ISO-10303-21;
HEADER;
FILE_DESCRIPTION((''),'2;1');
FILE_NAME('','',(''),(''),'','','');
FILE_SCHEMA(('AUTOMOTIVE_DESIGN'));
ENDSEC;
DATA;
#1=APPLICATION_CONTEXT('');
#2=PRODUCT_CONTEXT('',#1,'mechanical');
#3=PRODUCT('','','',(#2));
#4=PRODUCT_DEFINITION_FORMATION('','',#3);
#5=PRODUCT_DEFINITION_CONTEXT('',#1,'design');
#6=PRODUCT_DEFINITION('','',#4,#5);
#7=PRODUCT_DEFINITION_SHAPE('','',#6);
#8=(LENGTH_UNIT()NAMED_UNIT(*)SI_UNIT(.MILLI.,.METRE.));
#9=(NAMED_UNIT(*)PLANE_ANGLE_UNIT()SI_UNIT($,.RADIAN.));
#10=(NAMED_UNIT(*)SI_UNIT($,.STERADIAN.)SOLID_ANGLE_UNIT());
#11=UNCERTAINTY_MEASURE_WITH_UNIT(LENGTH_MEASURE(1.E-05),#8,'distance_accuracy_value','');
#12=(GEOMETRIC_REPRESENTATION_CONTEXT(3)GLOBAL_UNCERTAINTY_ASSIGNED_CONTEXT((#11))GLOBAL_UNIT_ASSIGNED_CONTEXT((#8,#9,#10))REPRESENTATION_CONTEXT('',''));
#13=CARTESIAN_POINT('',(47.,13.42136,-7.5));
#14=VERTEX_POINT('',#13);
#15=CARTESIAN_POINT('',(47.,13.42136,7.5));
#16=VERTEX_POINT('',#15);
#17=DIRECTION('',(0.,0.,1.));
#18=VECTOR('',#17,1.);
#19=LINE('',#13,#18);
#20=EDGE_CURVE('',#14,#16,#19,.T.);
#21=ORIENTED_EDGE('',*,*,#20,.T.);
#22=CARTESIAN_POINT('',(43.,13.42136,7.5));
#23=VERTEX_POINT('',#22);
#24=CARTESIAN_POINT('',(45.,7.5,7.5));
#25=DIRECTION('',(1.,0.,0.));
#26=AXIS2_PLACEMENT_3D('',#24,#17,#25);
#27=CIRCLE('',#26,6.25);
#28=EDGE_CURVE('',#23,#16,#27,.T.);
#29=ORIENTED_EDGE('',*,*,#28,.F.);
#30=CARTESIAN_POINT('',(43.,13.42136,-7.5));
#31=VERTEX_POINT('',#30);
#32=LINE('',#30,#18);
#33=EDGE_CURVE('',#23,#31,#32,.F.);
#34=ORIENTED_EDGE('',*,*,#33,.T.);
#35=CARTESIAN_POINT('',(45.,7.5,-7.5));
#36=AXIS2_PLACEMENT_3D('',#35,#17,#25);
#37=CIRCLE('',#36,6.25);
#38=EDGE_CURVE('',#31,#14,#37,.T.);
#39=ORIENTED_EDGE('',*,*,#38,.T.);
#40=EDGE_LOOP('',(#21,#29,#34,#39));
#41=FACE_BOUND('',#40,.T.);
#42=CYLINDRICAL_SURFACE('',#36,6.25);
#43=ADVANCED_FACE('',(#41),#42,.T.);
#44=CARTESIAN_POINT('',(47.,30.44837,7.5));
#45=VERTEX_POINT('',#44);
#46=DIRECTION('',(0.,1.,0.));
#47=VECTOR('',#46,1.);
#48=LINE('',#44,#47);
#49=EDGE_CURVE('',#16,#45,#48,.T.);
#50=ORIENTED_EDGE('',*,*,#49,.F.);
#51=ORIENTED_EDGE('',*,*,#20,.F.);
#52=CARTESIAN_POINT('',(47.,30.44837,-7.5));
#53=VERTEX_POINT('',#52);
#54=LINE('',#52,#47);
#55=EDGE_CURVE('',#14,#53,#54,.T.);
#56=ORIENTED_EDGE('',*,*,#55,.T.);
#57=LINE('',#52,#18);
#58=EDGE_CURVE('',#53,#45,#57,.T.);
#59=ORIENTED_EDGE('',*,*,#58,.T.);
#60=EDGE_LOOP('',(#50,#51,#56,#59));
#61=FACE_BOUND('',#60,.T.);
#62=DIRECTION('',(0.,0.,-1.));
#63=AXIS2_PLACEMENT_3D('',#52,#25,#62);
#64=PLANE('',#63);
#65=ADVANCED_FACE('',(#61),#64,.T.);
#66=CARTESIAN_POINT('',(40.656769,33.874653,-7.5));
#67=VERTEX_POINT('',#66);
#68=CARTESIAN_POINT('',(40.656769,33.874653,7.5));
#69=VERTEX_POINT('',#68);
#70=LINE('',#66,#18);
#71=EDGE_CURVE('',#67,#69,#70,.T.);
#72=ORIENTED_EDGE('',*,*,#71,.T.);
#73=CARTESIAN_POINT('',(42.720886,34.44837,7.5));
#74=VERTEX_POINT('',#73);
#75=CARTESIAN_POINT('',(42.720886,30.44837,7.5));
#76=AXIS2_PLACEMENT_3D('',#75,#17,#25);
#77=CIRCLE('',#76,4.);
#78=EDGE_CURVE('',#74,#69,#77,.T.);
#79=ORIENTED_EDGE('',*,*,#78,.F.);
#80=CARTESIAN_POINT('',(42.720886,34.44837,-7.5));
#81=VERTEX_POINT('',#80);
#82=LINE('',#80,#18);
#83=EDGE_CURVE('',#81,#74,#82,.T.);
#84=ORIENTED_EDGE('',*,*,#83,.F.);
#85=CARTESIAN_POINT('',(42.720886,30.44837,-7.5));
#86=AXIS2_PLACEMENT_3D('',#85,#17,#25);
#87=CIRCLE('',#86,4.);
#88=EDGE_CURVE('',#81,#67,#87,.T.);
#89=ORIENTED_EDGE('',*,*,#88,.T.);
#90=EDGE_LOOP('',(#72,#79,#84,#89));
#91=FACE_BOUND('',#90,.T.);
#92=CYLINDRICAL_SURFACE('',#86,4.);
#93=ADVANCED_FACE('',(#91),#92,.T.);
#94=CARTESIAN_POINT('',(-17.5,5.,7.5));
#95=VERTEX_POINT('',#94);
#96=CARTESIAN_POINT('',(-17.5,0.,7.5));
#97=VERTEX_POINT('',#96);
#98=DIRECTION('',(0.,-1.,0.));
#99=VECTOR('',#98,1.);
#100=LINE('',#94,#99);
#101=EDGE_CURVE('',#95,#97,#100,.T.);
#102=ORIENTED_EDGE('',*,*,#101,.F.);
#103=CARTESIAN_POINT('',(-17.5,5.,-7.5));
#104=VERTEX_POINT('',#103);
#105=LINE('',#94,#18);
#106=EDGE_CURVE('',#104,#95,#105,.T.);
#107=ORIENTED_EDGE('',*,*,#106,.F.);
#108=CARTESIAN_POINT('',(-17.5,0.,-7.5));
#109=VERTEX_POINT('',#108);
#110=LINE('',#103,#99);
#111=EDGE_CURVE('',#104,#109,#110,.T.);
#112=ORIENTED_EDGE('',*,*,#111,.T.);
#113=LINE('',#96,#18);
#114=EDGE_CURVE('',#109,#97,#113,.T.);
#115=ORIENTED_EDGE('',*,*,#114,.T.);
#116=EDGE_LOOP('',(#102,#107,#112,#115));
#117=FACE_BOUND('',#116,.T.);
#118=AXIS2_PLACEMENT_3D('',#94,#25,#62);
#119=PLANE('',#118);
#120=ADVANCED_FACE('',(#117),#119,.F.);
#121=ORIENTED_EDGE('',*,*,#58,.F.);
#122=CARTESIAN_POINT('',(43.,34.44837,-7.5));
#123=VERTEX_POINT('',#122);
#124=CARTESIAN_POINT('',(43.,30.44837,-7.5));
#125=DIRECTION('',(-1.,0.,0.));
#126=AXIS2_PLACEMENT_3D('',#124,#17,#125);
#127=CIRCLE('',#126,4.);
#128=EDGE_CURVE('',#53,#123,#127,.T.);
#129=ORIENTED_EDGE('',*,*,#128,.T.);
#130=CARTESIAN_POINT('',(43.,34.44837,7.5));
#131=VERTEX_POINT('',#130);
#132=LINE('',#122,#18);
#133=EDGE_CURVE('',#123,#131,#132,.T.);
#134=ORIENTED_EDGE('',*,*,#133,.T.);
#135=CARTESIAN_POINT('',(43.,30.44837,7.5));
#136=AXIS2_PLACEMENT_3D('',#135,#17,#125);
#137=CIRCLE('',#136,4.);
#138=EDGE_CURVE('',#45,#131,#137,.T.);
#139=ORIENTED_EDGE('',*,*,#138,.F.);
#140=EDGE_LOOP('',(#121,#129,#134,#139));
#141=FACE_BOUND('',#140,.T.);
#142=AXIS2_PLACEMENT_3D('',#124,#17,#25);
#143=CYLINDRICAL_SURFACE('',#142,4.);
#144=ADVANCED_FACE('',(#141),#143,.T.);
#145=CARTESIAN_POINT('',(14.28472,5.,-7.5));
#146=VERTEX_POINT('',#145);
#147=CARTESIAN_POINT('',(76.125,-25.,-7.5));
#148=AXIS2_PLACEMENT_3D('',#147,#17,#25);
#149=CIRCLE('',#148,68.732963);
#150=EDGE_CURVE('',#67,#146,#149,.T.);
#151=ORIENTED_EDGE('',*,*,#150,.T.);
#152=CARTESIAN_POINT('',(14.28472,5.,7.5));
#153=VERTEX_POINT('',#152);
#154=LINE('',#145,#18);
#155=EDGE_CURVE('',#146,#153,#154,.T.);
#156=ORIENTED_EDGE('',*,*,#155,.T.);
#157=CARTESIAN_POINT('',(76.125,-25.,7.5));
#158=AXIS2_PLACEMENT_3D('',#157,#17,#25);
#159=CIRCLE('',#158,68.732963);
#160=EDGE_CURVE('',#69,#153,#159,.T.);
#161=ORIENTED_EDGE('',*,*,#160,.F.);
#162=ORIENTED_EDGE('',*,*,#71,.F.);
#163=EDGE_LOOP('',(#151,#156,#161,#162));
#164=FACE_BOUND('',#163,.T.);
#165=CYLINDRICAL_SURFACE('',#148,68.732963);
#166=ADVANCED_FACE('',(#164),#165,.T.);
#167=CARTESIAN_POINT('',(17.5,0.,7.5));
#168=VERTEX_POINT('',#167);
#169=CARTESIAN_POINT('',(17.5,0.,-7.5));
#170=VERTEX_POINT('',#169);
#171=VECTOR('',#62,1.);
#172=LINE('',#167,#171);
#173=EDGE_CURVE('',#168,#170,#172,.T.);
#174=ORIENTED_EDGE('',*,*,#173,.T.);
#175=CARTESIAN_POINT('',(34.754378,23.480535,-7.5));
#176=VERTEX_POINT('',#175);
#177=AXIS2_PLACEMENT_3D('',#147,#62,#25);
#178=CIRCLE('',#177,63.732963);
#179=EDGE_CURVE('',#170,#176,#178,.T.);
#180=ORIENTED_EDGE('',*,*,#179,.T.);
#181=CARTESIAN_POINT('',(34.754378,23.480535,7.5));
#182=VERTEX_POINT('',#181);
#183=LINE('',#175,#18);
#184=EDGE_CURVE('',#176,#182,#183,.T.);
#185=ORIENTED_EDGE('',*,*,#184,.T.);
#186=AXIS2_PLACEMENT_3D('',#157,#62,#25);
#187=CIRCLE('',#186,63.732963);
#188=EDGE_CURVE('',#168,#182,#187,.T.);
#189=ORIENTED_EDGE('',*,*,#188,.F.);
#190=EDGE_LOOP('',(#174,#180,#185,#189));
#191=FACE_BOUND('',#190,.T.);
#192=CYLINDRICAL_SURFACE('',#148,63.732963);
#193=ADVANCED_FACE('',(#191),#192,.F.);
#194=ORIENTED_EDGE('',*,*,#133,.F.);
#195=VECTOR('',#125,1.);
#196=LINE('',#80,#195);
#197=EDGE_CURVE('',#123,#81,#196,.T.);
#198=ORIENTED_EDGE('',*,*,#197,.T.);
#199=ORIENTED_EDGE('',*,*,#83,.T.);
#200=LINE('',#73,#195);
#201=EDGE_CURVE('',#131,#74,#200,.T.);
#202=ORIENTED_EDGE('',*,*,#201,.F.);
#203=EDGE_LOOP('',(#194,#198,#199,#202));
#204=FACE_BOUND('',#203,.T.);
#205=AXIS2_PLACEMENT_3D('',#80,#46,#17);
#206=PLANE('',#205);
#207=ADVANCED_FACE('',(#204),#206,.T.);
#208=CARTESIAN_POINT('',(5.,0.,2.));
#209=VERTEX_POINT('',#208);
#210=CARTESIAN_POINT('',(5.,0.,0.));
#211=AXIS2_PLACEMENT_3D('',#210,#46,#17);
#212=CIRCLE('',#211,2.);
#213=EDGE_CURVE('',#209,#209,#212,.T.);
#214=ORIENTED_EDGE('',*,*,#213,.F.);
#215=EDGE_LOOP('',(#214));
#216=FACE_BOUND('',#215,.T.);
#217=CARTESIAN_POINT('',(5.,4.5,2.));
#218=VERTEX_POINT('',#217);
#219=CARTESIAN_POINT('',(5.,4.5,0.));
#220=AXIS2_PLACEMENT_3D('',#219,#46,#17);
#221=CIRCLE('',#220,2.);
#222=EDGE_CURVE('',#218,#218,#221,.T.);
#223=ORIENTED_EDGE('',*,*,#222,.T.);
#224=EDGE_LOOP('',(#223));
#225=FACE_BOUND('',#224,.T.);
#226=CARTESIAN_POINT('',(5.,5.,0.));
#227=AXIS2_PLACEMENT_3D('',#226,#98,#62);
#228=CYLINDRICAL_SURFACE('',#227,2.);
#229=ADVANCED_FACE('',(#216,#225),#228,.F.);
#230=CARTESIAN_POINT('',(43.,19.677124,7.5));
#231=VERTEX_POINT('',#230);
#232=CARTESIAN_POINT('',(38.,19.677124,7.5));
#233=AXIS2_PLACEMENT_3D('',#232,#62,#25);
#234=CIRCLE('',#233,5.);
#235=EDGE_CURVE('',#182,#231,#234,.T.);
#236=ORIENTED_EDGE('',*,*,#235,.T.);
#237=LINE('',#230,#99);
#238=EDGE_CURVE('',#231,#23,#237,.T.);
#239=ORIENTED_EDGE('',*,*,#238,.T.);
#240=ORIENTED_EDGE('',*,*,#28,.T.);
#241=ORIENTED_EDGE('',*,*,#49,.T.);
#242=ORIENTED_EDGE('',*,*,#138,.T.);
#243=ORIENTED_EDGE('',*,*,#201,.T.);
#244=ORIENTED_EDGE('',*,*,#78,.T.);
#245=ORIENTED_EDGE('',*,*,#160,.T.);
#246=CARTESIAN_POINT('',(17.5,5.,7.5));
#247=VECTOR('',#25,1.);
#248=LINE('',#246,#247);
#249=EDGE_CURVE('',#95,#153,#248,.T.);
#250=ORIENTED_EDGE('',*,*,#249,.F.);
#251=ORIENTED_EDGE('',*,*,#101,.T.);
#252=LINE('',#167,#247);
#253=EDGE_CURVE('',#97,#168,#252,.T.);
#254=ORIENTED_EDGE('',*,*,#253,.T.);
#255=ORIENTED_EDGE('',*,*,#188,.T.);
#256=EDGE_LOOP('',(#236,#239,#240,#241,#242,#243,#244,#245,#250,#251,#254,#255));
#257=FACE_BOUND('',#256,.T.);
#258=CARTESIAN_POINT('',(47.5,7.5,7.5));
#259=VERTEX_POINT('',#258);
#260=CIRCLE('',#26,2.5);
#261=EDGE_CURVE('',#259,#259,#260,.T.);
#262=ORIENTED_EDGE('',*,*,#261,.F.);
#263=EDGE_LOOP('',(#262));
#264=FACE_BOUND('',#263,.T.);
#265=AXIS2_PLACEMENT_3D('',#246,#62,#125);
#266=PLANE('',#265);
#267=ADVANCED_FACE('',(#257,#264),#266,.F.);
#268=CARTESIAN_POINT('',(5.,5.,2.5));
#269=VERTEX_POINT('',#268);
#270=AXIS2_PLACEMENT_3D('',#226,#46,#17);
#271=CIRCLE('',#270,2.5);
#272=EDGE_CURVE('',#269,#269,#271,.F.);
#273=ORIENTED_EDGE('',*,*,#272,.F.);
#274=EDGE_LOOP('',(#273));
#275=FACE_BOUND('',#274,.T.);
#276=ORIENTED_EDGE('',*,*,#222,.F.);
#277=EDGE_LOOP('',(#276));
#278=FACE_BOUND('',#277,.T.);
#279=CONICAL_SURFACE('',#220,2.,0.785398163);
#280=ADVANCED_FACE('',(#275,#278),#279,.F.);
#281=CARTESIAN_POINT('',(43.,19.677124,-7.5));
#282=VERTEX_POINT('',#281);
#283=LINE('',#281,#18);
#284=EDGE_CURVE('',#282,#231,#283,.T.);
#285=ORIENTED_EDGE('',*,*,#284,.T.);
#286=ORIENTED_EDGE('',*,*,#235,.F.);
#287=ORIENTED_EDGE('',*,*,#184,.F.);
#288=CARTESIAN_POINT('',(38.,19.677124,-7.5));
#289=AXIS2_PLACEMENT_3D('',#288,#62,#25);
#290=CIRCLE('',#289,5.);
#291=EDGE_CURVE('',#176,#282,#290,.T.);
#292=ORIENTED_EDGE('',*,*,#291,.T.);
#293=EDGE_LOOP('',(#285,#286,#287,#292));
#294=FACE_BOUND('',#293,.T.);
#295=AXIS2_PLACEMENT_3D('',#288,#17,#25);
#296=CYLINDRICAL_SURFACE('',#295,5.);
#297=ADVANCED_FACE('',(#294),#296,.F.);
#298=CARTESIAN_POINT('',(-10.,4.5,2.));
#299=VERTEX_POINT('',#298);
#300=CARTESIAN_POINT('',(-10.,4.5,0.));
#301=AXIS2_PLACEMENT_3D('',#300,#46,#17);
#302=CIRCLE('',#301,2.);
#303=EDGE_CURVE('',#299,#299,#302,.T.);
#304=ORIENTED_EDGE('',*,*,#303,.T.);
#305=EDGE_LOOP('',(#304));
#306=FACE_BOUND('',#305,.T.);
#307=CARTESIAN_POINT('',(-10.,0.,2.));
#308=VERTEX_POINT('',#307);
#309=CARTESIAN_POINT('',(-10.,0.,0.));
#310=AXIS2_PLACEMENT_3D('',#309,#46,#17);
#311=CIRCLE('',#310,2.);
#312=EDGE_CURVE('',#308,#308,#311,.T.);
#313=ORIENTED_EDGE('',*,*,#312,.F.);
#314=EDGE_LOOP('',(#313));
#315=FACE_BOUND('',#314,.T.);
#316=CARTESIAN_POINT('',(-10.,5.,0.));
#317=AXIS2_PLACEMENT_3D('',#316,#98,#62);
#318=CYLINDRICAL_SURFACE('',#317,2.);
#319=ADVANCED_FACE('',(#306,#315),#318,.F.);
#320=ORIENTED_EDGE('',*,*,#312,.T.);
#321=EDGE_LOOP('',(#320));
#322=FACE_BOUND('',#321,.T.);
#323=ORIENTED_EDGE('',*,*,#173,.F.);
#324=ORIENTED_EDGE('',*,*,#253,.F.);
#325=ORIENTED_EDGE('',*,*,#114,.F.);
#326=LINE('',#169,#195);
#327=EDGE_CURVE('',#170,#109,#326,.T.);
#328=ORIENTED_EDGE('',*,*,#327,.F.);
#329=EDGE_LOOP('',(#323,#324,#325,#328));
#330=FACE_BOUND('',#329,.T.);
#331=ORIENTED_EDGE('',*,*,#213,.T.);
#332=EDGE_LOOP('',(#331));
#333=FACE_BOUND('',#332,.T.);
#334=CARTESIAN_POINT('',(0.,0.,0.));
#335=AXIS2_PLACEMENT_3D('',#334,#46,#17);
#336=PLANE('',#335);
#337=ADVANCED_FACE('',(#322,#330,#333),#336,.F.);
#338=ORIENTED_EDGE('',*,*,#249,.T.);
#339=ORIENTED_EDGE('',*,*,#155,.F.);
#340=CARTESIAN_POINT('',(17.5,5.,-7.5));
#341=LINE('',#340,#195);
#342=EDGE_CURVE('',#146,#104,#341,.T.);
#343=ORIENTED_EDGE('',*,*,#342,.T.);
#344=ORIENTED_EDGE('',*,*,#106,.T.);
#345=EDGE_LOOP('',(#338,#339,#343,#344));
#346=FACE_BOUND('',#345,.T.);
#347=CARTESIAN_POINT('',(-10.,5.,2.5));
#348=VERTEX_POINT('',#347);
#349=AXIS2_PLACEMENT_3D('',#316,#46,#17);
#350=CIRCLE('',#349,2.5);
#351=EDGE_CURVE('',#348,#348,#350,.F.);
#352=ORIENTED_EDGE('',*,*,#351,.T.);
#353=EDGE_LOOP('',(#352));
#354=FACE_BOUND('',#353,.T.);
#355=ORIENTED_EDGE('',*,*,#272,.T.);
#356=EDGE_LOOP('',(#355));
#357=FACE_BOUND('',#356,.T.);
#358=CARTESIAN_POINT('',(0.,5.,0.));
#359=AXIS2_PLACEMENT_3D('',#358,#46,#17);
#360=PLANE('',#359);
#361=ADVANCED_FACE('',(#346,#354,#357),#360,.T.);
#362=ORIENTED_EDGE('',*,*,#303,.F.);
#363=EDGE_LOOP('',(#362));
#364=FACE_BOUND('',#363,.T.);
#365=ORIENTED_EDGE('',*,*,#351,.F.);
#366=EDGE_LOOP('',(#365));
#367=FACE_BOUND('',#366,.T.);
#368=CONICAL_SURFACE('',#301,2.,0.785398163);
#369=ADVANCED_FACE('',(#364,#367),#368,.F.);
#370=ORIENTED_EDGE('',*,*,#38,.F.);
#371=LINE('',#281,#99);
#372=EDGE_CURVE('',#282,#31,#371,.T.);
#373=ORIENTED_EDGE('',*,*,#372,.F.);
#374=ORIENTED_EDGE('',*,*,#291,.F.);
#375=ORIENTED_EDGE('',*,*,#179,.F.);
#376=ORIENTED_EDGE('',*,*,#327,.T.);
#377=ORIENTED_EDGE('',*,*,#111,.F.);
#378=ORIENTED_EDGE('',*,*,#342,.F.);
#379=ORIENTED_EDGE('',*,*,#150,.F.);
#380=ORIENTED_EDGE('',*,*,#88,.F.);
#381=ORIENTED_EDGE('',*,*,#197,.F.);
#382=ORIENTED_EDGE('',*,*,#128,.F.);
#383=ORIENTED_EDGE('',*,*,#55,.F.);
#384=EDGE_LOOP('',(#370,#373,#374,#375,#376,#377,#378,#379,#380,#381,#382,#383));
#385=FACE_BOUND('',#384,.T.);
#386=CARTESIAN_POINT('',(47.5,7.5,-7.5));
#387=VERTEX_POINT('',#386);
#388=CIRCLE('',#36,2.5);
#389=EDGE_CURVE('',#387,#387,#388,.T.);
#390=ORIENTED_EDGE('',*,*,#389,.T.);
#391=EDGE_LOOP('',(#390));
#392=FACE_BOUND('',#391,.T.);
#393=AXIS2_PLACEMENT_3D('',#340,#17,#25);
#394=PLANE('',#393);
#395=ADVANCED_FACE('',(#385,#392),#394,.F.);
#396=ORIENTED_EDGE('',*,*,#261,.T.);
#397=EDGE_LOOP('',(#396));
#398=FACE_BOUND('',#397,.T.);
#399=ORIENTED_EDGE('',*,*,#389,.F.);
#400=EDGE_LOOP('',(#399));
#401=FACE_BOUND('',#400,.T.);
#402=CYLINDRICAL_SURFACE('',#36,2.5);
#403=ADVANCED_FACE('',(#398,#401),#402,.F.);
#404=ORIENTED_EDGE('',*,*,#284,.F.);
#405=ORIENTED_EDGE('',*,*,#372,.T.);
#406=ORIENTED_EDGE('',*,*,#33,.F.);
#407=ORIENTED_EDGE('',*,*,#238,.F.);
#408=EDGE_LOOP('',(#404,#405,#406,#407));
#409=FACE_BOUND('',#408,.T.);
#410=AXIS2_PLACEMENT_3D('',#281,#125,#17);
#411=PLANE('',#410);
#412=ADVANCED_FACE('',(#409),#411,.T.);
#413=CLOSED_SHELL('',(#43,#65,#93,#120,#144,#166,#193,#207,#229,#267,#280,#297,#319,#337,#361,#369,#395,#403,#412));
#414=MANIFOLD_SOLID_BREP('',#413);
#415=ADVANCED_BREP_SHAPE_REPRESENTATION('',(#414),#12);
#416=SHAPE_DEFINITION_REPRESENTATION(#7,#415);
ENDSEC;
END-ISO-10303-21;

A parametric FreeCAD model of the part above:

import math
import FreeCAD as App
import Part
import Sketcher

V = App.Vector


def edges_at(feature, points):
    """Names of the edges that pass closest to the given points."""
    edges = feature.Shape.Edges
    near = lambda p: min(range(len(edges)), key=lambda i: edges[i].distToShape(Part.Vertex(*p))[0])
    return sorted({f"Edge{near(p) + 1}" for p in points})

doc = App.newDocument("Part")
body = doc.addObject("PartDesign::Body", "Body")

sketch1 = body.newObject("Sketcher::SketchObject", "Sketch")
sketch1.AttachmentSupport = (doc.getObject("XZ_Plane"), [""])
sketch1.MapMode = "FlatFace"
sketch1.addGeometry([
    Part.LineSegment(V(-17.5, -7.5, 0), V(-17.5, 7.5, 0)),
    Part.LineSegment(V(-17.5, 7.5, 0), V(17.5, 7.5, 0)),
    Part.LineSegment(V(17.5, 7.5, 0), V(17.5, -7.5, 0)),
    Part.LineSegment(V(17.5, -7.5, 0), V(-17.5, -7.5, 0)),
    Part.Circle(V(-10, 0, 0), V(0, 0, 1), 2),
    Part.Circle(V(5, 0, 0), V(0, 0, 1), 2),
], False)
sketch1.addConstraint([
    Sketcher.Constraint("Coincident", 0, 2, 1, 1),
    Sketcher.Constraint("Coincident", 1, 2, 2, 1),
    Sketcher.Constraint("Coincident", 2, 2, 3, 1),
    Sketcher.Constraint("Coincident", 3, 2, 0, 1),
    Sketcher.Constraint("Vertical", 0),
    Sketcher.Constraint("Horizontal", 1),
    Sketcher.Constraint("Vertical", 2),
    Sketcher.Constraint("Horizontal", 3),
    Sketcher.Constraint("Equal", 4, 5),
    Sketcher.Constraint("Symmetric", 0, 2, 2, 2, -1, 1),
    Sketcher.Constraint("PointOnObject", 4, 3, -1),
    Sketcher.Constraint("PointOnObject", 5, 3, -1),
    Sketcher.Constraint("Diameter", 4, 4.0),
    Sketcher.Constraint("DistanceX", 1, 1, 1, 2, 35.0),
    Sketcher.Constraint("DistanceY", 0, 1, 0, 2, 15.0),
    Sketcher.Constraint("DistanceX", 4, 3, -1, 1, 10.0),
    Sketcher.Constraint("DistanceX", -1, 1, 5, 3, 5.0),
])
pad1 = body.newObject("PartDesign::Pad", "Pad")
pad1.Profile = sketch1
pad1.Length = 5
pad1.Reversed = True

sketch2 = body.newObject("Sketcher::SketchObject", "Sketch001")
sketch2.AttachmentSupport = (doc.getObject("XY_Plane"), [""])
sketch2.MapMode = "FlatFace"
sketch2.AttachmentOffset = App.Placement(V(0, 0, 7.5), App.Rotation())
sketch2.addGeometry([
    Part.LineSegment(V(12.1, 0, 0), V(17.5, 0, 0)),
    Part.ArcOfCircle(Part.Circle(V(76.13, -25, 0), V(0, 0, 1), 63.73), math.radians(130), math.radians(157)),
    Part.ArcOfCircle(Part.Circle(V(38, 19.68, 0), V(0, 0, 1), 5), math.radians(0), math.radians(130)),
    Part.LineSegment(V(43, 19.68, 0), V(43, 7.5, 0)),
    Part.LineSegment(V(43, 7.5, 0), V(47, 7.5, 0)),
    Part.LineSegment(V(47, 7.5, 0), V(47, 30.45, 0)),
    Part.ArcOfCircle(Part.Circle(V(43, 30.45, 0), V(0, 0, 1), 4), math.radians(0), math.radians(90)),
    Part.LineSegment(V(43, 34.45, 0), V(42.72, 34.45, 0)),
    Part.ArcOfCircle(Part.Circle(V(42.72, 30.45, 0), V(0, 0, 1), 4), math.radians(90), math.radians(121)),
    Part.ArcOfCircle(Part.Circle(V(76.12, -25, 0), V(0, 0, 1), 68.73), math.radians(121), math.radians(159)),
], False)
sketch2.addConstraint([
    Sketcher.Constraint("Coincident", 0, 2, 1, 2),
    Sketcher.Constraint("Tangent", 1, 1, 2, 2),
    Sketcher.Constraint("Tangent", 2, 1, 3, 1),
    Sketcher.Constraint("Coincident", 3, 2, 4, 1),
    Sketcher.Constraint("Coincident", 4, 2, 5, 1),
    Sketcher.Constraint("Tangent", 5, 2, 6, 1),
    Sketcher.Constraint("Tangent", 6, 2, 7, 1),
    Sketcher.Constraint("Tangent", 7, 2, 8, 1),
    Sketcher.Constraint("Tangent", 8, 2, 9, 1),
    Sketcher.Constraint("Coincident", 9, 2, 0, 1),
    Sketcher.Constraint("Horizontal", 0),
    Sketcher.Constraint("Vertical", 3),
    Sketcher.Constraint("Horizontal", 4),
    Sketcher.Constraint("Vertical", 5),
    Sketcher.Constraint("Horizontal", 7),
    Sketcher.Constraint("Coincident", 9, 3, 1, 3),
    Sketcher.Constraint("Equal", 6, 8),
    Sketcher.Constraint("PointOnObject", 0, 2, -1),
    Sketcher.Constraint("Vertical", 6, 3, 2, 1),
    Sketcher.Constraint("Radius", 2, 5.0),
    Sketcher.Constraint("Radius", 6, 4.0),
    Sketcher.Constraint("DistanceY", 1, 3, -1, 1, 25.0),
    Sketcher.Constraint("DistanceX", -1, 1, 2, 3, 38.0),
    Sketcher.Constraint("DistanceX", -1, 1, 0, 2, 17.5),
    Sketcher.Constraint("DistanceY", -1, 1, 3, 2, 7.5),
    Sketcher.Constraint("DistanceX", -1, 1, 1, 3, 76.125),
    Sketcher.Constraint("Radius", 9, 68.732963),
    Sketcher.Constraint("DistanceY", 5, 1, 5, 2, 22.94837),
])
pad2 = body.newObject("PartDesign::Pad", "Pad001")
pad2.Profile = sketch2
pad2.Length = 15
pad2.Reversed = True

sketch3 = body.newObject("Sketcher::SketchObject", "Sketch002")
sketch3.AttachmentSupport = (doc.getObject("XY_Plane"), [""])
sketch3.MapMode = "FlatFace"
sketch3.AttachmentOffset = App.Placement(V(0, 0, 7.5), App.Rotation())
sketch3.addGeometry(Part.Circle(V(45, 8, 0), V(0, 0, 1), 6), False)
sketch3.addConstraint([
    Sketcher.Constraint("Diameter", 0, 12.5),
    Sketcher.Constraint("DistanceX", -1, 1, 0, 3, 45.0),
    Sketcher.Constraint("DistanceY", -1, 1, 0, 3, 7.5),
])
pad3 = body.newObject("PartDesign::Pad", "Pad002")
pad3.Profile = sketch3
pad3.Length = 15
pad3.Reversed = True

sketch4 = body.newObject("Sketcher::SketchObject", "Sketch003")
sketch4.AttachmentSupport = (doc.getObject("XY_Plane"), [""])
sketch4.MapMode = "FlatFace"
sketch4.AttachmentOffset = App.Placement(V(0, 0, 7.5), App.Rotation())
sketch4.addGeometry(Part.Circle(V(45, 7.5, 0), V(0, 0, 1), 2.5), False)
sketch4.addConstraint([
    Sketcher.Constraint("Diameter", 0, 5.0),
    Sketcher.Constraint("DistanceX", -1, 1, 0, 3, 45.0),
    Sketcher.Constraint("DistanceY", -1, 1, 0, 3, 7.5),
])
pocket1 = body.newObject("PartDesign::Pocket", "Pocket")
pocket1.Profile = sketch4
pocket1.Length = 15
doc.recompute()

chamfer = body.newObject("PartDesign::Chamfer", "Chamfer")
chamfer.Base = (pocket1, edges_at(pocket1, [(-10, 5, -2), (5, 5, -2)]))
chamfer.Size = 0.5

doc.recompute()
